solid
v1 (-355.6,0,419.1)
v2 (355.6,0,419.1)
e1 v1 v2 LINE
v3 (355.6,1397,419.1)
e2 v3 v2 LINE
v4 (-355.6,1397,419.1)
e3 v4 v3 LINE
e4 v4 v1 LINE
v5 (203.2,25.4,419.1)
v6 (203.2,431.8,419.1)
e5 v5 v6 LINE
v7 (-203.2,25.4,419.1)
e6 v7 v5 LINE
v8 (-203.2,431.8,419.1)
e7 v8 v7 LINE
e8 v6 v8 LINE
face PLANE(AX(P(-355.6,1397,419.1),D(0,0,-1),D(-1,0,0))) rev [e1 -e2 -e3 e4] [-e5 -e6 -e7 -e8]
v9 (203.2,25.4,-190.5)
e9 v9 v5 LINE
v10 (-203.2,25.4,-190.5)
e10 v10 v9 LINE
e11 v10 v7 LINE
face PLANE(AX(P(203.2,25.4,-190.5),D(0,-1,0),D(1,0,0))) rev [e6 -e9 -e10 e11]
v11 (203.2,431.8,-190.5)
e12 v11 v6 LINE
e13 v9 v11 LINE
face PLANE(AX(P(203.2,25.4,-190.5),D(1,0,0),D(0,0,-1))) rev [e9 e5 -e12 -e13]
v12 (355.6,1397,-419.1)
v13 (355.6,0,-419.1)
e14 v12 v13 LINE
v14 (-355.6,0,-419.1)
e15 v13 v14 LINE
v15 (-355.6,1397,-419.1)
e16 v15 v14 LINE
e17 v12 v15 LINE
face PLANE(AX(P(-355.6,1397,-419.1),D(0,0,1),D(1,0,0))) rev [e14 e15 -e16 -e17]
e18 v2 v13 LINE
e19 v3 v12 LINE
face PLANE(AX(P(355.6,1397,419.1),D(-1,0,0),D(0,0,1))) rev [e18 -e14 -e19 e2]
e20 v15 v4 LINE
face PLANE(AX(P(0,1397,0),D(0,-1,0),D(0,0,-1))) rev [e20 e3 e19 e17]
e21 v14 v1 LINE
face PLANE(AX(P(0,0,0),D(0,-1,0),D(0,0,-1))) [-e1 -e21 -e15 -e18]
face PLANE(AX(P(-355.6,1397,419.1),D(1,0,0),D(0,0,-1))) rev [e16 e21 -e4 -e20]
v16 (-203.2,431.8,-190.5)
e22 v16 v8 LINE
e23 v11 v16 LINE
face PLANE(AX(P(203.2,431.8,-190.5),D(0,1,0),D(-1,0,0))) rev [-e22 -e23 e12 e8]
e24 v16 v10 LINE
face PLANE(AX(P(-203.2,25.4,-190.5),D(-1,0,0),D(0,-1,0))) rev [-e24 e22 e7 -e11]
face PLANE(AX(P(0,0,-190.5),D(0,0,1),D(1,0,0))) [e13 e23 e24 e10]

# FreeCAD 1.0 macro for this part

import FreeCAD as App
import Part
import Sketcher

V = App.Vector
Q = App.Units.Quantity


def add_polygon(sketch, points):
    """Adds a closed chain of lines whose ends are joined by coincident constraints."""
    first, n = sketch.GeometryCount, len(points)
    for a, b in zip(points, points[1:] + points[:1]):
        sketch.addGeometry(Part.LineSegment(App.Vector(*a, 0), App.Vector(*b, 0)), False)
    for i in range(n):
        sketch.addConstraint(Sketcher.Constraint("Coincident", first + i, 2, first + (i + 1) % n, 1))

doc = App.newDocument("Part")
body = doc.addObject("PartDesign::Body", "Body")

# Sketch on XZ plane
sketch1 = body.newObject("Sketcher::SketchObject", "Sketch")
sketch1.AttachmentSupport = (doc.getObject("XZ_Plane"), [""])
sketch1.MapMode = "FlatFace"
add_polygon(sketch1, [(-355.6, -419.1), (-355.6, 419.1), (355.6, 419.1), (355.6, -419.1)])  # lines 0-3
sketch1.addConstraint([
    Sketcher.Constraint("Vertical", 0),
    Sketcher.Constraint("Horizontal", 1),
    Sketcher.Constraint("Vertical", 2),
    Sketcher.Constraint("Horizontal", 3),
    Sketcher.Constraint("Symmetric", 0, 2, 2, 2, -1, 1),
    Sketcher.Constraint("DistanceX", 1, 1, 1, 2, Q("28 in")),
    Sketcher.Constraint("DistanceY", 0, 1, 0, 2, Q("33 in")),
])
pad1 = body.newObject("PartDesign::Pad", "Pad")
pad1.Profile = sketch1
pad1.Length = Q("55 in")
pad1.Reversed = True

# Sketch on XY plane
sketch2 = body.newObject("Sketcher::SketchObject", "Sketch001")
sketch2.AttachmentSupport = (doc.getObject("XY_Plane"), [""])
sketch2.MapMode = "FlatFace"
sketch2.AttachmentOffset = App.Placement(V(0, 0, 16.5 * 25.4), App.Rotation())
add_polygon(sketch2, [(-203.2, 431.8), (-203.2, 25.4), (203.2, 25.4), (203.2, 431.8)])  # lines 0-3
sketch2.addConstraint([
    Sketcher.Constraint("Vertical", 0),
    Sketcher.Constraint("Horizontal", 1),
    Sketcher.Constraint("Vertical", 2),
    Sketcher.Constraint("Horizontal", 3),
    Sketcher.Constraint("Equal", 3, 0),
    Sketcher.Constraint("DistanceX", 1, 1, 1, 2, Q("16 in")),
    Sketcher.Constraint("DistanceX", 0, 2, -1, 1, Q("8 in")),
    Sketcher.Constraint("DistanceY", -1, 1, 0, 2, Q("1 in")),
])
pocket1 = body.newObject("PartDesign::Pocket", "Pocket")
pocket1.Profile = sketch2
pocket1.Length = Q("24 in")

doc.recompute()
